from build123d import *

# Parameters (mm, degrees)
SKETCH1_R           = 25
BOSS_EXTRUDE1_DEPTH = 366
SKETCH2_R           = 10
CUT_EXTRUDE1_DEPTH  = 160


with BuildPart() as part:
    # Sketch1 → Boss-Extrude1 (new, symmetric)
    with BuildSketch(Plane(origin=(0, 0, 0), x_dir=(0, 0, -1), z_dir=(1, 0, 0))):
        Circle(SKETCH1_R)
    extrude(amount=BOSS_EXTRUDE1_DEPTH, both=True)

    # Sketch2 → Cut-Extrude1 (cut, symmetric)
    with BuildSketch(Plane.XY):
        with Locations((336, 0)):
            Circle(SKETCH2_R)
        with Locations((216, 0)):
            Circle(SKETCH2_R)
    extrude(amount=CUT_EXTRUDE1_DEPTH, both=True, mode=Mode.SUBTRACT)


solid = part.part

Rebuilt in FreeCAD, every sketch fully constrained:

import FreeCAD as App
import Part
import Sketcher

doc = App.newDocument("Part")
body = doc.addObject("PartDesign::Body", "Body")

sketch1 = body.newObject("Sketcher::SketchObject", "Sketch")
sketch1.AttachmentSupport = (doc.getObject("YZ_Plane"), [""])
sketch1.MapMode = "FlatFace"
sketch1.addGeometry(Part.Circle(App.Vector(0, 0, 0), App.Vector(0, 0, 1), 25), False)
sketch1.addConstraint(Sketcher.Constraint("Coincident", 0, 3, -1, 1))
sketch1.addConstraint(Sketcher.Constraint("Diameter", 0, 50.0))
pad1 = body.newObject("PartDesign::Pad", "Pad")
pad1.Profile = sketch1
pad1.Length = 732
pad1.Midplane = True

sketch2 = body.newObject("Sketcher::SketchObject", "Sketch001")
sketch2.AttachmentSupport = (doc.getObject("XY_Plane"), [""])
sketch2.MapMode = "FlatFace"
sketch2.addGeometry(Part.Circle(App.Vector(336, 0, 0), App.Vector(0, 0, 1), 10), False)
sketch2.addGeometry(Part.Circle(App.Vector(216, 0, 0), App.Vector(0, 0, 1), 10), False)
sketch2.addConstraint(Sketcher.Constraint("Equal", 0, 1))
sketch2.addConstraint(Sketcher.Constraint("PointOnObject", 0, 3, -1))
sketch2.addConstraint(Sketcher.Constraint("PointOnObject", 1, 3, -1))
sketch2.addConstraint(Sketcher.Constraint("Diameter", 0, 20.0))
sketch2.addConstraint(Sketcher.Constraint("DistanceX", -1, 1, 0, 3, 336.0))
sketch2.addConstraint(Sketcher.Constraint("DistanceX", -1, 1, 1, 3, 216.0))
pocket1 = body.newObject("PartDesign::Pocket", "Pocket")
pocket1.Profile = sketch2
pocket1.Length = 320
pocket1.Midplane = True

doc.recompute()
